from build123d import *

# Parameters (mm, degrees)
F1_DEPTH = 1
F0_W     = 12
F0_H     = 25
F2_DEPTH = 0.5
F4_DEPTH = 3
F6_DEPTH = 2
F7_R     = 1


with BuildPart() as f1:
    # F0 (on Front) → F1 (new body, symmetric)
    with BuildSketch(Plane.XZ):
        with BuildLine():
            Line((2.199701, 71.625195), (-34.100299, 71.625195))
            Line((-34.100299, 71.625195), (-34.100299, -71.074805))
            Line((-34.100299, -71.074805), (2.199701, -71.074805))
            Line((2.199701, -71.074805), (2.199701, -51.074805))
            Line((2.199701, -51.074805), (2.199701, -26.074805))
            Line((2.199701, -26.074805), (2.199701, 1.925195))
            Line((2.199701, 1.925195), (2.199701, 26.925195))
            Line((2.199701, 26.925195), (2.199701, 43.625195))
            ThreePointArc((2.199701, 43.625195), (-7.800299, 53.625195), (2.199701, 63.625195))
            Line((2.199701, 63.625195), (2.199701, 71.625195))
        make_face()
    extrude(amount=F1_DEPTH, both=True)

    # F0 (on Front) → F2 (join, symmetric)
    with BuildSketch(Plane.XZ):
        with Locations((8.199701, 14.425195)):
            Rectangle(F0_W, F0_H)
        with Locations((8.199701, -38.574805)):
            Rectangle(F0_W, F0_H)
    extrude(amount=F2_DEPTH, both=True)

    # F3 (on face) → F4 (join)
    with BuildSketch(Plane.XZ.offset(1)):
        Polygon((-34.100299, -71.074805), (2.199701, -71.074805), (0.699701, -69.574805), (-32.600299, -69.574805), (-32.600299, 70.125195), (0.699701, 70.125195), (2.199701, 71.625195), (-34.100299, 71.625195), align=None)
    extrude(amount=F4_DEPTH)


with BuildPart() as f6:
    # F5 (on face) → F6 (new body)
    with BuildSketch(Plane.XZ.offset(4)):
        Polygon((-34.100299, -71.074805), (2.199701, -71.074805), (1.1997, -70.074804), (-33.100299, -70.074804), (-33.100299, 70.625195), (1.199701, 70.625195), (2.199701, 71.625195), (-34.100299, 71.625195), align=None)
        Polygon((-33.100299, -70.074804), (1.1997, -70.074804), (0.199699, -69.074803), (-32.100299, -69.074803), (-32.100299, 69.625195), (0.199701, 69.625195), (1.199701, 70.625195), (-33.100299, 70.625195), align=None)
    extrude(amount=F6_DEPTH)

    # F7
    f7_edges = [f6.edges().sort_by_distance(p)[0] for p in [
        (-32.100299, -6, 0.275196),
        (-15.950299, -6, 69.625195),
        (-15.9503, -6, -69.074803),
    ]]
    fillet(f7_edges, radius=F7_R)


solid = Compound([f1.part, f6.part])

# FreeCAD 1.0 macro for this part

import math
import FreeCAD as App
import Part
import Sketcher
from FreeCAD import Vector
Q = App.Units.Quantity


def edges_at(feature, points):
    """Names of the edges that pass closest to the given points."""
    edges = feature.Shape.Edges
    near = lambda p: min(range(len(edges)), key=lambda i: edges[i].distToShape(Part.Vertex(*p))[0])
    return sorted({f"Edge{near(p) + 1}" for p in points})

doc = App.newDocument("Part")
params = doc.addObject("Spreadsheet::Sheet", "Params")
for row, (alias, value) in enumerate([
    ("sketch1_radius", "10 mm"),
    ("sketch1_height", "8 mm"),
    ("sketch1_width", "36.3 mm"),
    ("sketch1_height2", "142.7 mm"),
    ("pad1_length", "2 mm"),
    ("sketch2_width", "12 mm"),
    ("sketch2_height", "25 mm"),
    ("pad2_length", "1 mm"),
    ("sketch3_width", "36.3 mm"),
    ("sketch3_width2", "33.3 mm"),
    ("sketch3_height", "139.7 mm"),
    ("sketch3_height2", "142.7 mm"),
    ("pad3_length", "3 mm"),
    ("sketch4_width", "36.3 mm"),
    ("sketch4_width2", "32.299998 mm"),
    ("sketch4_height", "138.699998 mm"),
    ("sketch4_height2", "142.7 mm"),
    ("pad4_length", "2 mm"),
    ("fillet_radius", "1 mm"),
], start=1):
    params.set(f"A{row}", alias)
    params.set(f"B{row}", "=" + value)
    params.setAlias(f"B{row}", alias)

body = doc.addObject("PartDesign::Body", "Body")

sketch1 = doc.addObject("Sketcher::SketchObject", "Sketch")
body.addObject(sketch1)
sketch1.AttachmentSupport = (doc.XZ_Plane, [""])
sketch1.MapMode = "FlatFace"
sketch1.addGeometry([
    Part.LineSegment(Vector(2.199701, 71.625195, 0), Vector(-34.100299, 71.625195, 0)),
    Part.LineSegment(Vector(-34.100299, 71.625195, 0), Vector(-34.100299, -71.074805, 0)),
    Part.LineSegment(Vector(-34.100299, -71.074805, 0), Vector(2.199701, -71.074805, 0)),
    Part.LineSegment(Vector(2.199701, -71.074805, 0), Vector(2.199701, 43.625195, 0)),
    Part.ArcOfCircle(Part.Circle(Vector(2.199701, 53.625195, 0), Vector(0, 0, 1), 10), math.radians(90), math.radians(270)),
    Part.LineSegment(Vector(2.199701, 63.625195, 0), Vector(2.199701, 71.625195, 0)),
], False)
sketch1.addConstraint([
    Sketcher.Constraint("Coincident", 0, 2, 1, 1),
    Sketcher.Constraint("Coincident", 1, 2, 2, 1),
    Sketcher.Constraint("Coincident", 2, 2, 3, 1),
    Sketcher.Constraint("Coincident", 3, 2, 4, 2),
    Sketcher.Constraint("Coincident", 4, 1, 5, 1),
    Sketcher.Constraint("Coincident", 5, 2, 0, 1),
    Sketcher.Constraint("Horizontal", 0),
    Sketcher.Constraint("Vertical", 1),
    Sketcher.Constraint("Horizontal", 2),
    Sketcher.Constraint("Vertical", 3),
    Sketcher.Constraint("Vertical", 5),
    Sketcher.Constraint("Vertical", 4, 3, 2, 2),
    Sketcher.Constraint("Vertical", 3, 2, 4, 1),
    Sketcher.Constraint("Radius", 4, 10.0),
    Sketcher.Constraint("DistanceY", 5, 1, 5, 2, 8.0),
    Sketcher.Constraint("DistanceX", 0, 2, 0, 1, 36.3),
    Sketcher.Constraint("DistanceY", 1, 2, 1, 1, 142.7),
    Sketcher.Constraint("DistanceX", -1, 1, 4, 3, 2.199701),
    Sketcher.Constraint("DistanceY", -1, 1, 4, 3, 53.625195),
])
sketch1.setExpression("Constraints[13]", "Params.sketch1_radius")
sketch1.setExpression("Constraints[14]", "Params.sketch1_height")
sketch1.setExpression("Constraints[15]", "Params.sketch1_width")
sketch1.setExpression("Constraints[16]", "Params.sketch1_height2")
pad1 = doc.addObject("PartDesign::Pad", "Pad")
body.addObject(pad1)
pad1.Profile = sketch1
pad1.setExpression("Length", "Params.pad1_length")
pad1.Midplane = True

sketch2 = doc.addObject("Sketcher::SketchObject", "Sketch001")
body.addObject(sketch2)
sketch2.AttachmentSupport = (doc.XZ_Plane, [""])
sketch2.MapMode = "FlatFace"
sketch2.addGeometry([
    Part.LineSegment(Vector(2.199701, 26.925195, 0), Vector(2.199701, 1.925195, 0)),
    Part.LineSegment(Vector(2.199701, 1.925195, 0), Vector(14.199701, 1.925195, 0)),
    Part.LineSegment(Vector(14.199701, 1.925195, 0), Vector(14.199701, 26.925195, 0)),
    Part.LineSegment(Vector(14.199701, 26.925195, 0), Vector(2.199701, 26.925195, 0)),
    Part.LineSegment(Vector(2.199701, -26.074805, 0), Vector(2.199701, -51.074805, 0)),
    Part.LineSegment(Vector(2.199701, -51.074805, 0), Vector(14.199701, -51.074805, 0)),
    Part.LineSegment(Vector(14.199701, -51.074805, 0), Vector(14.199701, -26.074805, 0)),
    Part.LineSegment(Vector(14.199701, -26.074805, 0), Vector(2.199701, -26.074805, 0)),
], False)
sketch2.addConstraint([
    Sketcher.Constraint("Coincident", 0, 2, 1, 1),
    Sketcher.Constraint("Coincident", 1, 2, 2, 1),
    Sketcher.Constraint("Coincident", 2, 2, 3, 1),
    Sketcher.Constraint("Coincident", 3, 2, 0, 1),
    Sketcher.Constraint("Coincident", 4, 2, 5, 1),
    Sketcher.Constraint("Coincident", 5, 2, 6, 1),
    Sketcher.Constraint("Coincident", 6, 2, 7, 1),
    Sketcher.Constraint("Coincident", 7, 2, 4, 1),
    Sketcher.Constraint("Vertical", 0),
    Sketcher.Constraint("Horizontal", 1),
    Sketcher.Constraint("Vertical", 2),
    Sketcher.Constraint("Horizontal", 3),
    Sketcher.Constraint("Vertical", 4),
    Sketcher.Constraint("Horizontal", 5),
    Sketcher.Constraint("Vertical", 6),
    Sketcher.Constraint("Horizontal", 7),
    Sketcher.Constraint("Vertical", 3, 2, 4, 2),
    Sketcher.Constraint("Vertical", 2, 2, 5, 2),
    Sketcher.Constraint("Equal", 2, 4),
    Sketcher.Constraint("DistanceX", 1, 1, 1, 2, 12.0),
    Sketcher.Constraint("DistanceY", 0, 2, 0, 1, 25.0),
    Sketcher.Constraint("DistanceY", 4, 2, 0, 2, 53.0),
    Sketcher.Constraint("DistanceX", -1, 1, 0, 2, 2.199701),
    Sketcher.Constraint("DistanceY", -1, 1, 0, 2, 1.925195),
])
sketch2.setExpression("Constraints[19]", "Params.sketch2_width")
sketch2.setExpression("Constraints[20]", "Params.sketch2_height")
pad2 = doc.addObject("PartDesign::Pad", "Pad001")
body.addObject(pad2)
pad2.Profile = sketch2
pad2.setExpression("Length", "Params.pad2_length")
pad2.Midplane = True

sketch3 = doc.addObject("Sketcher::SketchObject", "Sketch002")
body.addObject(sketch3)
sketch3.AttachmentSupport = (doc.XZ_Plane, [""])
sketch3.MapMode = "FlatFace"
sketch3.AttachmentOffset = App.Placement(Vector(0, 0, 1), App.Rotation())
sketch3.addGeometry([
    Part.LineSegment(Vector(-34.100299, -71.074805, 0), Vector(2.199701, -71.074805, 0)),
    Part.LineSegment(Vector(2.199701, -71.074805, 0), Vector(0.699701, -69.574805, 0)),
    Part.LineSegment(Vector(0.699701, -69.574805, 0), Vector(-32.600299, -69.574805, 0)),
    Part.LineSegment(Vector(-32.600299, -69.574805, 0), Vector(-32.600299, 70.125195, 0)),
    Part.LineSegment(Vector(-32.600299, 70.125195, 0), Vector(0.699701, 70.125195, 0)),
    Part.LineSegment(Vector(0.699701, 70.125195, 0), Vector(2.199701, 71.625195, 0)),
    Part.LineSegment(Vector(2.199701, 71.625195, 0), Vector(-34.100299, 71.625195, 0)),
    Part.LineSegment(Vector(-34.100299, 71.625195, 0), Vector(-34.100299, -71.074805, 0)),
], False)
sketch3.addConstraint([
    Sketcher.Constraint("Coincident", 0, 2, 1, 1),
    Sketcher.Constraint("Coincident", 1, 2, 2, 1),
    Sketcher.Constraint("Coincident", 2, 2, 3, 1),
    Sketcher.Constraint("Coincident", 3, 2, 4, 1),
    Sketcher.Constraint("Coincident", 4, 2, 5, 1),
    Sketcher.Constraint("Coincident", 5, 2, 6, 1),
    Sketcher.Constraint("Coincident", 6, 2, 7, 1),
    Sketcher.Constraint("Coincident", 7, 2, 0, 1),
    Sketcher.Constraint("Horizontal", 0),
    Sketcher.Constraint("Horizontal", 2),
    Sketcher.Constraint("Vertical", 3),
    Sketcher.Constraint("Horizontal", 4),
    Sketcher.Constraint("Horizontal", 6),
    Sketcher.Constraint("Vertical", 7),
    Sketcher.Constraint("Perpendicular", 1, 5),
    Sketcher.Constraint("Vertical", 1, 2, 4, 2),
    Sketcher.Constraint("Vertical", 0, 2, 5, 2),
    Sketcher.Constraint("Equal", 1, 5),
    Sketcher.Constraint("DistanceX", 0, 1, 0, 2, 36.3),
    Sketcher.Constraint("DistanceX", 2, 2, 2, 1, 33.3),
    Sketcher.Constraint("DistanceY", 3, 1, 3, 2, 139.7),
    Sketcher.Constraint("DistanceY", 7, 2, 7, 1, 142.7),
    Sketcher.Constraint("DistanceX", -1, 1, 0, 2, 2.199701),
    Sketcher.Constraint("DistanceY", 0, 2, -1, 1, 71.074805),
])
sketch3.setExpression("Constraints[18]", "Params.sketch3_width")
sketch3.setExpression("Constraints[19]", "Params.sketch3_width2")
sketch3.setExpression("Constraints[20]", "Params.sketch3_height")
sketch3.setExpression("Constraints[21]", "Params.sketch3_height2")
pad3 = doc.addObject("PartDesign::Pad", "Pad002")
body.addObject(pad3)
pad3.Profile = sketch3
pad3.setExpression("Length", "Params.pad3_length")
body2 = doc.addObject("PartDesign::Body", "Body001")

sketch4 = doc.addObject("Sketcher::SketchObject", "Sketch003")
body2.addObject(sketch4)
sketch4.AttachmentSupport = (doc.getObject("XZ_Plane001"), [""])
sketch4.MapMode = "FlatFace"
sketch4.AttachmentOffset = App.Placement(Vector(0, 0, 4), App.Rotation())
sketch4.addGeometry([
    Part.LineSegment(Vector(-34.100299, -71.074805, 0), Vector(2.199701, -71.074805, 0)),
    Part.LineSegment(Vector(2.199701, -71.074805, 0), Vector(0.199699, -69.074803, 0)),
    Part.LineSegment(Vector(0.199699, -69.074803, 0), Vector(-32.100299, -69.074803, 0)),
    Part.LineSegment(Vector(-32.100299, -69.074803, 0), Vector(-32.100299, 69.625195, 0)),
    Part.LineSegment(Vector(-32.100299, 69.625195, 0), Vector(0.199701, 69.625195, 0)),
    Part.LineSegment(Vector(0.199701, 69.625195, 0), Vector(2.199701, 71.625195, 0)),
    Part.LineSegment(Vector(2.199701, 71.625195, 0), Vector(-34.100299, 71.625195, 0)),
    Part.LineSegment(Vector(-34.100299, 71.625195, 0), Vector(-34.100299, -71.074805, 0)),
], False)
sketch4.addConstraint([
    Sketcher.Constraint("Coincident", 0, 2, 1, 1),
    Sketcher.Constraint("Coincident", 1, 2, 2, 1),
    Sketcher.Constraint("Coincident", 2, 2, 3, 1),
    Sketcher.Constraint("Coincident", 3, 2, 4, 1),
    Sketcher.Constraint("Coincident", 4, 2, 5, 1),
    Sketcher.Constraint("Coincident", 5, 2, 6, 1),
    Sketcher.Constraint("Coincident", 6, 2, 7, 1),
    Sketcher.Constraint("Coincident", 7, 2, 0, 1),
    Sketcher.Constraint("Horizontal", 0),
    Sketcher.Constraint("Horizontal", 2),
    Sketcher.Constraint("Vertical", 3),
    Sketcher.Constraint("Horizontal", 4),
    Sketcher.Constraint("Horizontal", 6),
    Sketcher.Constraint("Vertical", 7),
    Sketcher.Constraint("Perpendicular", 1, 5),
    Sketcher.Constraint("Vertical", 0, 2, 5, 2),
    Sketcher.Constraint("Equal", 2, 4),
    Sketcher.Constraint("Angle", 1, Q("135 deg")),
    Sketcher.Constraint("DistanceX", 0, 1, 0, 2, 36.3),
    Sketcher.Constraint("DistanceX", 2, 2, 2, 1, 32.299998),
    Sketcher.Constraint("DistanceY", 3, 1, 3, 2, 138.699998),
    Sketcher.Constraint("DistanceY", 7, 2, 7, 1, 142.7),
    Sketcher.Constraint("DistanceX", -1, 1, 0, 2, 2.199701),
    Sketcher.Constraint("DistanceY", 0, 2, -1, 1, 71.074805),
])
sketch4.setExpression("Constraints[18]", "Params.sketch4_width")
sketch4.setExpression("Constraints[19]", "Params.sketch4_width2")
sketch4.setExpression("Constraints[20]", "Params.sketch4_height")
sketch4.setExpression("Constraints[21]", "Params.sketch4_height2")
pad4 = doc.addObject("PartDesign::Pad", "Pad003")
body2.addObject(pad4)
pad4.Profile = sketch4
pad4.setExpression("Length", "Params.pad4_length")
doc.recompute()

fillet = doc.addObject("PartDesign::Fillet", "Fillet")
body2.addObject(fillet)
fillet.Base = (pad4, edges_at(pad4, [(-32.1, -6, 0.275), (-15.95, -6, 69.625), (-15.95, -6, -69.075)]))
fillet.setExpression("Radius", "Params.fillet_radius")

doc.recompute()
